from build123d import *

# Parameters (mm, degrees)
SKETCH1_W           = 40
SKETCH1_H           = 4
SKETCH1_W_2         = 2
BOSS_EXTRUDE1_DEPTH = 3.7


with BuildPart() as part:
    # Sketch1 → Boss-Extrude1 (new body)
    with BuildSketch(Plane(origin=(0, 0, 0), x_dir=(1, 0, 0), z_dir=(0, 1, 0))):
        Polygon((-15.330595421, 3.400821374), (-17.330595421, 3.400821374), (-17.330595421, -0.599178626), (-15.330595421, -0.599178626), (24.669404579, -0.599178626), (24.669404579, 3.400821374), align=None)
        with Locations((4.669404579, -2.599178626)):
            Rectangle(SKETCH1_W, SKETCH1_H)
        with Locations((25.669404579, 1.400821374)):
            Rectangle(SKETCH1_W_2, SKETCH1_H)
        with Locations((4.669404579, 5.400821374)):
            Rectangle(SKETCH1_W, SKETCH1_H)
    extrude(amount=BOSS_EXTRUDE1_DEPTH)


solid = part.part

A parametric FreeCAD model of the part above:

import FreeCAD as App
import Part
import Sketcher

V = App.Vector

doc = App.newDocument("Part")
body = doc.addObject("PartDesign::Body", "Body")

sketch1 = body.newObject("Sketcher::SketchObject", "Sketch")
sketch1.AttachmentSupport = (doc.getObject("XZ_Plane"), [""])
sketch1.MapMode = "FlatFace"
sketch1.addGeometry([
    Part.LineSegment(V(-17.3, -3.4, 0), V(-17.3, 0.6, 0)),
    Part.LineSegment(V(-17.3, 0.6, 0), V(-15.3, 0.6, 0)),
    Part.LineSegment(V(-15.3, 0.6, 0), V(-15.3, 4.6, 0)),
    Part.LineSegment(V(-15.3, 4.6, 0), V(24.7, 4.6, 0)),
    Part.LineSegment(V(24.7, 4.6, 0), V(24.7, 0.6, 0)),
    Part.LineSegment(V(24.7, 0.6, 0), V(26.7, 0.6, 0)),
    Part.LineSegment(V(26.7, 0.6, 0), V(26.7, -3.4, 0)),
    Part.LineSegment(V(26.7, -3.4, 0), V(24.7, -3.4, 0)),
    Part.LineSegment(V(24.7, -3.4, 0), V(24.7, -7.4, 0)),
    Part.LineSegment(V(24.7, -7.4, 0), V(-15.3, -7.4, 0)),
    Part.LineSegment(V(-15.3, -7.4, 0), V(-15.3, -3.4, 0)),
    Part.LineSegment(V(-15.3, -3.4, 0), V(-17.3, -3.4, 0)),
], False)
sketch1.addConstraint([
    Sketcher.Constraint("Coincident", 0, 2, 1, 1),
    Sketcher.Constraint("Coincident", 1, 2, 2, 1),
    Sketcher.Constraint("Coincident", 2, 2, 3, 1),
    Sketcher.Constraint("Coincident", 3, 2, 4, 1),
    Sketcher.Constraint("Coincident", 4, 2, 5, 1),
    Sketcher.Constraint("Coincident", 5, 2, 6, 1),
    Sketcher.Constraint("Coincident", 6, 2, 7, 1),
    Sketcher.Constraint("Coincident", 7, 2, 8, 1),
    Sketcher.Constraint("Coincident", 8, 2, 9, 1),
    Sketcher.Constraint("Coincident", 9, 2, 10, 1),
    Sketcher.Constraint("Coincident", 10, 2, 11, 1),
    Sketcher.Constraint("Coincident", 11, 2, 0, 1),
    Sketcher.Constraint("Vertical", 0),
    Sketcher.Constraint("Horizontal", 1),
    Sketcher.Constraint("Vertical", 2),
    Sketcher.Constraint("Horizontal", 3),
    Sketcher.Constraint("Vertical", 4),
    Sketcher.Constraint("Horizontal", 5),
    Sketcher.Constraint("Vertical", 6),
    Sketcher.Constraint("Horizontal", 7),
    Sketcher.Constraint("Vertical", 8),
    Sketcher.Constraint("Horizontal", 9),
    Sketcher.Constraint("Vertical", 10),
    Sketcher.Constraint("Horizontal", 11),
    Sketcher.Constraint("Horizontal", 1, 2, 4, 2),
    Sketcher.Constraint("Horizontal", 7, 2, 10, 2),
    Sketcher.Constraint("Vertical", 4, 2, 7, 2),
    Sketcher.Constraint("Vertical", 2, 2, 9, 2),
    Sketcher.Constraint("Equal", 1, 5),
    Sketcher.Constraint("Equal", 0, 2),
    Sketcher.Constraint("Equal", 6, 8),
    Sketcher.Constraint("DistanceX", 1, 1, 1, 2, 2.0),
    Sketcher.Constraint("DistanceX", 3, 1, 3, 2, 40.0),
    Sketcher.Constraint("DistanceY", 0, 1, 0, 2, 4.0),
    Sketcher.Constraint("DistanceY", -1, 1, 0, 2, 0.599179),
    Sketcher.Constraint("DistanceX", 0, 2, -1, 1, 17.330595),
])
pad1 = body.newObject("PartDesign::Pad", "Pad")
pad1.Profile = sketch1
pad1.Length = 3.7
pad1.Reversed = True

doc.recompute()
